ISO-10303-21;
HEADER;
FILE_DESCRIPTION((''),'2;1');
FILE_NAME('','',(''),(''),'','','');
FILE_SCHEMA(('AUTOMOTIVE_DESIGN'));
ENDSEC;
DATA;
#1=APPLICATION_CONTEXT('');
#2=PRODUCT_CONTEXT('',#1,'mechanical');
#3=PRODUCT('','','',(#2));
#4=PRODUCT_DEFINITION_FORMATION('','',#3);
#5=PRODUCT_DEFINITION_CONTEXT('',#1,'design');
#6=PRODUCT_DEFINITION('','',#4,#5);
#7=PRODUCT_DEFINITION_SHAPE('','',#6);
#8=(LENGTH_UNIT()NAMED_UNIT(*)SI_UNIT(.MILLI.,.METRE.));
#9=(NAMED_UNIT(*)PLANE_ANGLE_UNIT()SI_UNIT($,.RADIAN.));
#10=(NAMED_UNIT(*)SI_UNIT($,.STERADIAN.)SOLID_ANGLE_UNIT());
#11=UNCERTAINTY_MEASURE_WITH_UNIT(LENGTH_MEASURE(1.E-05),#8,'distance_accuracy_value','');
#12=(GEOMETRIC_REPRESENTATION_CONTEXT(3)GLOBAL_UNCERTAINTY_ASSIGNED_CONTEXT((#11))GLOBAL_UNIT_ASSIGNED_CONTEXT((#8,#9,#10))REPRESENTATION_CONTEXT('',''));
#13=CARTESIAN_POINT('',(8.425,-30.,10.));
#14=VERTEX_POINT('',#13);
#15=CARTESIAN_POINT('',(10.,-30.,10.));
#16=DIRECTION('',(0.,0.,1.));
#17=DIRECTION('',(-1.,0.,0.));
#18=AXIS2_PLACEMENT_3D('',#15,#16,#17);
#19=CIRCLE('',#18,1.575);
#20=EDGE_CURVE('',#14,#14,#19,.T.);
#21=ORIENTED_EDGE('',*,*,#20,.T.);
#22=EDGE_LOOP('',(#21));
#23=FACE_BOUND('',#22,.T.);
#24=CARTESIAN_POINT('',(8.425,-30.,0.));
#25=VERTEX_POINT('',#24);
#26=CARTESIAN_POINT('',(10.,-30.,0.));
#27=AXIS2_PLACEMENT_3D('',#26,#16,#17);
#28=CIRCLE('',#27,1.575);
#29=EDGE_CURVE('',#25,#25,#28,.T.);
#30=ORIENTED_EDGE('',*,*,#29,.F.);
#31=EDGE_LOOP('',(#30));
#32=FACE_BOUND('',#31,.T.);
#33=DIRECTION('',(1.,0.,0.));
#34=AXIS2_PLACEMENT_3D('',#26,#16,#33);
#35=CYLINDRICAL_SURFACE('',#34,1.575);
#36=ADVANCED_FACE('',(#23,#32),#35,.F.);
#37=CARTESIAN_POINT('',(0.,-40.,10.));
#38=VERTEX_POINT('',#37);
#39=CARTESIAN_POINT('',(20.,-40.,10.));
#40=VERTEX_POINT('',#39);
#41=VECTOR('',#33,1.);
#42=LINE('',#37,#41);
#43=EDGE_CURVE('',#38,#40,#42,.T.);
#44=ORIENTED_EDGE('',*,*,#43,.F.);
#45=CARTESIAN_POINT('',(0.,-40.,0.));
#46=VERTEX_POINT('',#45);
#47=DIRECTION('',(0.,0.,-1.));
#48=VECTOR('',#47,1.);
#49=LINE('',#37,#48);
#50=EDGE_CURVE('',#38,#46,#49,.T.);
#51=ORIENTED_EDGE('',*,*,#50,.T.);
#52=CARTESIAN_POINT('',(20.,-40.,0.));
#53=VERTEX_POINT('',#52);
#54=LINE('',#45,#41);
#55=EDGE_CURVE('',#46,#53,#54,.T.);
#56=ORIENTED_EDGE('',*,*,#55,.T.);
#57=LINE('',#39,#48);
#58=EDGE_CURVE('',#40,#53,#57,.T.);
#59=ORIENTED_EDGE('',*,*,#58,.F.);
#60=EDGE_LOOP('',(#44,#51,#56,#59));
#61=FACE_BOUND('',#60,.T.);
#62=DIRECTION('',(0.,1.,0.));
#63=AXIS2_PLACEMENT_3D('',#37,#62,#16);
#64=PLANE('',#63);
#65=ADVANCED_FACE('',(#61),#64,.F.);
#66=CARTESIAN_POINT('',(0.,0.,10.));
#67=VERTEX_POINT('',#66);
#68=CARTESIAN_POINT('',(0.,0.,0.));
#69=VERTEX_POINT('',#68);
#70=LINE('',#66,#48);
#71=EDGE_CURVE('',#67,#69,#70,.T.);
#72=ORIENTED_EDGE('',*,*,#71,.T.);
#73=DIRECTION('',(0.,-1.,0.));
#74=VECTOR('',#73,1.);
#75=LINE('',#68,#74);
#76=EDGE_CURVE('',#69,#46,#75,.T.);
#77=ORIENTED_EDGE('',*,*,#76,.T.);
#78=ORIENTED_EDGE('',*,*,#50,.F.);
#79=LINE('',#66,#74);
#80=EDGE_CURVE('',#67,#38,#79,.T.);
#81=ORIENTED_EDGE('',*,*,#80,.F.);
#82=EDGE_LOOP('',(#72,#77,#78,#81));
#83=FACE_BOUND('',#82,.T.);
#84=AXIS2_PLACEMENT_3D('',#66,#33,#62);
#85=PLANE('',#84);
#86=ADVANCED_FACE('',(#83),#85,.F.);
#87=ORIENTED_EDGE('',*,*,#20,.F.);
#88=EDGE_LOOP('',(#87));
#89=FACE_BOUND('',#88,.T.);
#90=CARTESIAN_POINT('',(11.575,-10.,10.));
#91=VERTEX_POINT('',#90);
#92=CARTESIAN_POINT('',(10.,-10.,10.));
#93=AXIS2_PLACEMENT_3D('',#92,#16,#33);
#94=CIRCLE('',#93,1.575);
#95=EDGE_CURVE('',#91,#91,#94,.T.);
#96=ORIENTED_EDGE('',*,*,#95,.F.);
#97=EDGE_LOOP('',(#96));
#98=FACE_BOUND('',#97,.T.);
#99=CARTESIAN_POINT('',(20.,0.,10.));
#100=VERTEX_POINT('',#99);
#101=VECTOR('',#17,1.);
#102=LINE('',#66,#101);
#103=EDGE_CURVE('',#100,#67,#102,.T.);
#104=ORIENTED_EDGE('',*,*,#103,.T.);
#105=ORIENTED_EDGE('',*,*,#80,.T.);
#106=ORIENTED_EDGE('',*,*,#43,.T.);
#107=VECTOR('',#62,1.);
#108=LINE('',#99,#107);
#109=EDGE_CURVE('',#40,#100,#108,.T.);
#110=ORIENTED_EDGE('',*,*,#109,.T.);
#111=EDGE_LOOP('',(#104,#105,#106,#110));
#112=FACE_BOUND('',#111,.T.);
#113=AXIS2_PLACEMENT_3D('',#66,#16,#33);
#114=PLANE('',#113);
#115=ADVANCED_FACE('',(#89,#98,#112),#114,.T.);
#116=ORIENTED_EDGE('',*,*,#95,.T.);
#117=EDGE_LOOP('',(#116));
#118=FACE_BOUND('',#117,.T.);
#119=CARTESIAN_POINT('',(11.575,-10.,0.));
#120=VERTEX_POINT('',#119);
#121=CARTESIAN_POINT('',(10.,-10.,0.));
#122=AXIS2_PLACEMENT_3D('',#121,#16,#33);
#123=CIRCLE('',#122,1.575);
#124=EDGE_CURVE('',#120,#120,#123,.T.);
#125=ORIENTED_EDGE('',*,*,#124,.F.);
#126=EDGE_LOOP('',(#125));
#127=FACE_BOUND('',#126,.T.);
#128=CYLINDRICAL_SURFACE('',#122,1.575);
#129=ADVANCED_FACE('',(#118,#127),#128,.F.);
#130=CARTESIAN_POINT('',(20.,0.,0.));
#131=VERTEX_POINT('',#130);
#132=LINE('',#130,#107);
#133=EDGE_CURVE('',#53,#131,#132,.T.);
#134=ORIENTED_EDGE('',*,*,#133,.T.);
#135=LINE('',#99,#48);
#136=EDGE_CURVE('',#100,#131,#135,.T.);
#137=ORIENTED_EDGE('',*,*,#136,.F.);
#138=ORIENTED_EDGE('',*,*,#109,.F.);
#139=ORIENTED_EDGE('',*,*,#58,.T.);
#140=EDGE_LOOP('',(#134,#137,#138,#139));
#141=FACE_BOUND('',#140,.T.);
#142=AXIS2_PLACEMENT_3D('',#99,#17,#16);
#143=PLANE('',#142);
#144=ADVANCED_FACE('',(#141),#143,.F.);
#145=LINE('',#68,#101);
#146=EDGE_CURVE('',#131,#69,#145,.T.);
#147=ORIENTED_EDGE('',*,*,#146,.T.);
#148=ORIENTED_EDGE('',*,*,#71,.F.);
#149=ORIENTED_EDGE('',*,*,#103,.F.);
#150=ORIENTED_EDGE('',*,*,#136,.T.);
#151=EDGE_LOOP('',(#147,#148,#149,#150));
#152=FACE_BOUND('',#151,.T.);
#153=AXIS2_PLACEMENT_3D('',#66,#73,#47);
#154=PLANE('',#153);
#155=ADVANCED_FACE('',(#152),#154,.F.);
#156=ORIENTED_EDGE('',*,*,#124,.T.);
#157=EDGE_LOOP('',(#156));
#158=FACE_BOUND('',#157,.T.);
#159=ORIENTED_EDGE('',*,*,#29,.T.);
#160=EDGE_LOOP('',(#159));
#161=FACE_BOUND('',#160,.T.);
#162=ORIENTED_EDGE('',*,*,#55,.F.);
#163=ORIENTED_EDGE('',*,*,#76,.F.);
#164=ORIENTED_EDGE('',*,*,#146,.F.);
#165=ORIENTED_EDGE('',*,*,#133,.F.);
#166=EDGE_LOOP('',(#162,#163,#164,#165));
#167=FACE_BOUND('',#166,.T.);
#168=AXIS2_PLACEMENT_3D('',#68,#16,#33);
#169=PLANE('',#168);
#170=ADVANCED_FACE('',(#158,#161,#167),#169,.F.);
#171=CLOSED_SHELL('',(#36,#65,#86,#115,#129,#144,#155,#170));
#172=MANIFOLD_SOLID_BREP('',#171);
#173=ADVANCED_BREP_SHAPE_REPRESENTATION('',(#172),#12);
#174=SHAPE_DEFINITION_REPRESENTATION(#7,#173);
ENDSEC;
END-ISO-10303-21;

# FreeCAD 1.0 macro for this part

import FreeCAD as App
import Part
import Sketcher

V = App.Vector


def add_polygon(sketch, points):
    """Adds a closed chain of lines whose ends are joined by coincident constraints."""
    first, n = sketch.GeometryCount, len(points)
    for a, b in zip(points, points[1:] + points[:1]):
        sketch.addGeometry(Part.LineSegment(App.Vector(*a, 0), App.Vector(*b, 0)), False)
    for i in range(n):
        sketch.addConstraint(Sketcher.Constraint("Coincident", first + i, 2, first + (i + 1) % n, 1))

doc = App.newDocument("Part")
params = doc.addObject("Spreadsheet::Sheet", "Params")
for row, (alias, value) in enumerate([
    ("sketch1_width", "20 mm"),
    ("sketch1_height", "40 mm"),
    ("pad1_length", "10 mm"),
    ("sketch2_diameter", "3.15 mm"),
], start=1):
    params.set(f"A{row}", alias)
    params.set(f"B{row}", "=" + value)
    params.setAlias(f"B{row}", alias)

body = doc.addObject("PartDesign::Body", "Body")

# Sketch on XY plane
sketch1 = body.newObject("Sketcher::SketchObject", "Sketch")
sketch1.AttachmentSupport = (doc.getObject("XY_Plane"), [""])
sketch1.MapMode = "FlatFace"
add_polygon(sketch1, [(0, 0), (0, -40), (20, -40), (20, 0)])  # lines 0-3
sketch1.addConstraint(Sketcher.Constraint("Vertical", 0))
sketch1.addConstraint(Sketcher.Constraint("Horizontal", 1))
sketch1.addConstraint(Sketcher.Constraint("Vertical", 2))
sketch1.addConstraint(Sketcher.Constraint("Horizontal", 3))
sketch1.addConstraint(Sketcher.Constraint("Coincident", 3, 2, -1, 1))
sketch1.addConstraint(Sketcher.Constraint("DistanceX", 1, 1, 1, 2, 20.0))
sketch1.addConstraint(Sketcher.Constraint("DistanceY", 0, 2, 0, 1, 40.0))
sketch1.setExpression("Constraints[9]", "Params.sketch1_width")
sketch1.setExpression("Constraints[10]", "Params.sketch1_height")
pad1 = body.newObject("PartDesign::Pad", "Pad")
pad1.Profile = sketch1
pad1.setExpression("Length", "Params.pad1_length")

# Sketch on XY plane
sketch2 = body.newObject("Sketcher::SketchObject", "Sketch001")
sketch2.AttachmentSupport = (doc.getObject("XY_Plane"), [""])
sketch2.MapMode = "FlatFace"
sketch2.AttachmentOffset = App.Placement(V(0, 0, 10), App.Rotation())
sketch2.addGeometry(Part.Circle(V(10, -10, 0), V(0, 0, 1), 1.6), False)
sketch2.addGeometry(Part.Circle(V(10, -30, 0), V(0, 0, 1), 1.6), False)
sketch2.addConstraint(Sketcher.Constraint("Equal", 0, 1))
sketch2.addConstraint(Sketcher.Constraint("Vertical", 0, 3, 1, 3))
sketch2.addConstraint(Sketcher.Constraint("Diameter", 0, 3.15))
sketch2.addConstraint(Sketcher.Constraint("DistanceX", -1, 1, 0, 3, 10.0))
sketch2.addConstraint(Sketcher.Constraint("DistanceY", 0, 3, -1, 1, 10.0))
sketch2.addConstraint(Sketcher.Constraint("DistanceY", 1, 3, -1, 1, 30.0))
sketch2.setExpression("Constraints[2]", "Params.sketch2_diameter")
pocket1 = body.newObject("PartDesign::Pocket", "Pocket")
pocket1.Profile = sketch2
pocket1.Type = "ThroughAll"

doc.recompute()
